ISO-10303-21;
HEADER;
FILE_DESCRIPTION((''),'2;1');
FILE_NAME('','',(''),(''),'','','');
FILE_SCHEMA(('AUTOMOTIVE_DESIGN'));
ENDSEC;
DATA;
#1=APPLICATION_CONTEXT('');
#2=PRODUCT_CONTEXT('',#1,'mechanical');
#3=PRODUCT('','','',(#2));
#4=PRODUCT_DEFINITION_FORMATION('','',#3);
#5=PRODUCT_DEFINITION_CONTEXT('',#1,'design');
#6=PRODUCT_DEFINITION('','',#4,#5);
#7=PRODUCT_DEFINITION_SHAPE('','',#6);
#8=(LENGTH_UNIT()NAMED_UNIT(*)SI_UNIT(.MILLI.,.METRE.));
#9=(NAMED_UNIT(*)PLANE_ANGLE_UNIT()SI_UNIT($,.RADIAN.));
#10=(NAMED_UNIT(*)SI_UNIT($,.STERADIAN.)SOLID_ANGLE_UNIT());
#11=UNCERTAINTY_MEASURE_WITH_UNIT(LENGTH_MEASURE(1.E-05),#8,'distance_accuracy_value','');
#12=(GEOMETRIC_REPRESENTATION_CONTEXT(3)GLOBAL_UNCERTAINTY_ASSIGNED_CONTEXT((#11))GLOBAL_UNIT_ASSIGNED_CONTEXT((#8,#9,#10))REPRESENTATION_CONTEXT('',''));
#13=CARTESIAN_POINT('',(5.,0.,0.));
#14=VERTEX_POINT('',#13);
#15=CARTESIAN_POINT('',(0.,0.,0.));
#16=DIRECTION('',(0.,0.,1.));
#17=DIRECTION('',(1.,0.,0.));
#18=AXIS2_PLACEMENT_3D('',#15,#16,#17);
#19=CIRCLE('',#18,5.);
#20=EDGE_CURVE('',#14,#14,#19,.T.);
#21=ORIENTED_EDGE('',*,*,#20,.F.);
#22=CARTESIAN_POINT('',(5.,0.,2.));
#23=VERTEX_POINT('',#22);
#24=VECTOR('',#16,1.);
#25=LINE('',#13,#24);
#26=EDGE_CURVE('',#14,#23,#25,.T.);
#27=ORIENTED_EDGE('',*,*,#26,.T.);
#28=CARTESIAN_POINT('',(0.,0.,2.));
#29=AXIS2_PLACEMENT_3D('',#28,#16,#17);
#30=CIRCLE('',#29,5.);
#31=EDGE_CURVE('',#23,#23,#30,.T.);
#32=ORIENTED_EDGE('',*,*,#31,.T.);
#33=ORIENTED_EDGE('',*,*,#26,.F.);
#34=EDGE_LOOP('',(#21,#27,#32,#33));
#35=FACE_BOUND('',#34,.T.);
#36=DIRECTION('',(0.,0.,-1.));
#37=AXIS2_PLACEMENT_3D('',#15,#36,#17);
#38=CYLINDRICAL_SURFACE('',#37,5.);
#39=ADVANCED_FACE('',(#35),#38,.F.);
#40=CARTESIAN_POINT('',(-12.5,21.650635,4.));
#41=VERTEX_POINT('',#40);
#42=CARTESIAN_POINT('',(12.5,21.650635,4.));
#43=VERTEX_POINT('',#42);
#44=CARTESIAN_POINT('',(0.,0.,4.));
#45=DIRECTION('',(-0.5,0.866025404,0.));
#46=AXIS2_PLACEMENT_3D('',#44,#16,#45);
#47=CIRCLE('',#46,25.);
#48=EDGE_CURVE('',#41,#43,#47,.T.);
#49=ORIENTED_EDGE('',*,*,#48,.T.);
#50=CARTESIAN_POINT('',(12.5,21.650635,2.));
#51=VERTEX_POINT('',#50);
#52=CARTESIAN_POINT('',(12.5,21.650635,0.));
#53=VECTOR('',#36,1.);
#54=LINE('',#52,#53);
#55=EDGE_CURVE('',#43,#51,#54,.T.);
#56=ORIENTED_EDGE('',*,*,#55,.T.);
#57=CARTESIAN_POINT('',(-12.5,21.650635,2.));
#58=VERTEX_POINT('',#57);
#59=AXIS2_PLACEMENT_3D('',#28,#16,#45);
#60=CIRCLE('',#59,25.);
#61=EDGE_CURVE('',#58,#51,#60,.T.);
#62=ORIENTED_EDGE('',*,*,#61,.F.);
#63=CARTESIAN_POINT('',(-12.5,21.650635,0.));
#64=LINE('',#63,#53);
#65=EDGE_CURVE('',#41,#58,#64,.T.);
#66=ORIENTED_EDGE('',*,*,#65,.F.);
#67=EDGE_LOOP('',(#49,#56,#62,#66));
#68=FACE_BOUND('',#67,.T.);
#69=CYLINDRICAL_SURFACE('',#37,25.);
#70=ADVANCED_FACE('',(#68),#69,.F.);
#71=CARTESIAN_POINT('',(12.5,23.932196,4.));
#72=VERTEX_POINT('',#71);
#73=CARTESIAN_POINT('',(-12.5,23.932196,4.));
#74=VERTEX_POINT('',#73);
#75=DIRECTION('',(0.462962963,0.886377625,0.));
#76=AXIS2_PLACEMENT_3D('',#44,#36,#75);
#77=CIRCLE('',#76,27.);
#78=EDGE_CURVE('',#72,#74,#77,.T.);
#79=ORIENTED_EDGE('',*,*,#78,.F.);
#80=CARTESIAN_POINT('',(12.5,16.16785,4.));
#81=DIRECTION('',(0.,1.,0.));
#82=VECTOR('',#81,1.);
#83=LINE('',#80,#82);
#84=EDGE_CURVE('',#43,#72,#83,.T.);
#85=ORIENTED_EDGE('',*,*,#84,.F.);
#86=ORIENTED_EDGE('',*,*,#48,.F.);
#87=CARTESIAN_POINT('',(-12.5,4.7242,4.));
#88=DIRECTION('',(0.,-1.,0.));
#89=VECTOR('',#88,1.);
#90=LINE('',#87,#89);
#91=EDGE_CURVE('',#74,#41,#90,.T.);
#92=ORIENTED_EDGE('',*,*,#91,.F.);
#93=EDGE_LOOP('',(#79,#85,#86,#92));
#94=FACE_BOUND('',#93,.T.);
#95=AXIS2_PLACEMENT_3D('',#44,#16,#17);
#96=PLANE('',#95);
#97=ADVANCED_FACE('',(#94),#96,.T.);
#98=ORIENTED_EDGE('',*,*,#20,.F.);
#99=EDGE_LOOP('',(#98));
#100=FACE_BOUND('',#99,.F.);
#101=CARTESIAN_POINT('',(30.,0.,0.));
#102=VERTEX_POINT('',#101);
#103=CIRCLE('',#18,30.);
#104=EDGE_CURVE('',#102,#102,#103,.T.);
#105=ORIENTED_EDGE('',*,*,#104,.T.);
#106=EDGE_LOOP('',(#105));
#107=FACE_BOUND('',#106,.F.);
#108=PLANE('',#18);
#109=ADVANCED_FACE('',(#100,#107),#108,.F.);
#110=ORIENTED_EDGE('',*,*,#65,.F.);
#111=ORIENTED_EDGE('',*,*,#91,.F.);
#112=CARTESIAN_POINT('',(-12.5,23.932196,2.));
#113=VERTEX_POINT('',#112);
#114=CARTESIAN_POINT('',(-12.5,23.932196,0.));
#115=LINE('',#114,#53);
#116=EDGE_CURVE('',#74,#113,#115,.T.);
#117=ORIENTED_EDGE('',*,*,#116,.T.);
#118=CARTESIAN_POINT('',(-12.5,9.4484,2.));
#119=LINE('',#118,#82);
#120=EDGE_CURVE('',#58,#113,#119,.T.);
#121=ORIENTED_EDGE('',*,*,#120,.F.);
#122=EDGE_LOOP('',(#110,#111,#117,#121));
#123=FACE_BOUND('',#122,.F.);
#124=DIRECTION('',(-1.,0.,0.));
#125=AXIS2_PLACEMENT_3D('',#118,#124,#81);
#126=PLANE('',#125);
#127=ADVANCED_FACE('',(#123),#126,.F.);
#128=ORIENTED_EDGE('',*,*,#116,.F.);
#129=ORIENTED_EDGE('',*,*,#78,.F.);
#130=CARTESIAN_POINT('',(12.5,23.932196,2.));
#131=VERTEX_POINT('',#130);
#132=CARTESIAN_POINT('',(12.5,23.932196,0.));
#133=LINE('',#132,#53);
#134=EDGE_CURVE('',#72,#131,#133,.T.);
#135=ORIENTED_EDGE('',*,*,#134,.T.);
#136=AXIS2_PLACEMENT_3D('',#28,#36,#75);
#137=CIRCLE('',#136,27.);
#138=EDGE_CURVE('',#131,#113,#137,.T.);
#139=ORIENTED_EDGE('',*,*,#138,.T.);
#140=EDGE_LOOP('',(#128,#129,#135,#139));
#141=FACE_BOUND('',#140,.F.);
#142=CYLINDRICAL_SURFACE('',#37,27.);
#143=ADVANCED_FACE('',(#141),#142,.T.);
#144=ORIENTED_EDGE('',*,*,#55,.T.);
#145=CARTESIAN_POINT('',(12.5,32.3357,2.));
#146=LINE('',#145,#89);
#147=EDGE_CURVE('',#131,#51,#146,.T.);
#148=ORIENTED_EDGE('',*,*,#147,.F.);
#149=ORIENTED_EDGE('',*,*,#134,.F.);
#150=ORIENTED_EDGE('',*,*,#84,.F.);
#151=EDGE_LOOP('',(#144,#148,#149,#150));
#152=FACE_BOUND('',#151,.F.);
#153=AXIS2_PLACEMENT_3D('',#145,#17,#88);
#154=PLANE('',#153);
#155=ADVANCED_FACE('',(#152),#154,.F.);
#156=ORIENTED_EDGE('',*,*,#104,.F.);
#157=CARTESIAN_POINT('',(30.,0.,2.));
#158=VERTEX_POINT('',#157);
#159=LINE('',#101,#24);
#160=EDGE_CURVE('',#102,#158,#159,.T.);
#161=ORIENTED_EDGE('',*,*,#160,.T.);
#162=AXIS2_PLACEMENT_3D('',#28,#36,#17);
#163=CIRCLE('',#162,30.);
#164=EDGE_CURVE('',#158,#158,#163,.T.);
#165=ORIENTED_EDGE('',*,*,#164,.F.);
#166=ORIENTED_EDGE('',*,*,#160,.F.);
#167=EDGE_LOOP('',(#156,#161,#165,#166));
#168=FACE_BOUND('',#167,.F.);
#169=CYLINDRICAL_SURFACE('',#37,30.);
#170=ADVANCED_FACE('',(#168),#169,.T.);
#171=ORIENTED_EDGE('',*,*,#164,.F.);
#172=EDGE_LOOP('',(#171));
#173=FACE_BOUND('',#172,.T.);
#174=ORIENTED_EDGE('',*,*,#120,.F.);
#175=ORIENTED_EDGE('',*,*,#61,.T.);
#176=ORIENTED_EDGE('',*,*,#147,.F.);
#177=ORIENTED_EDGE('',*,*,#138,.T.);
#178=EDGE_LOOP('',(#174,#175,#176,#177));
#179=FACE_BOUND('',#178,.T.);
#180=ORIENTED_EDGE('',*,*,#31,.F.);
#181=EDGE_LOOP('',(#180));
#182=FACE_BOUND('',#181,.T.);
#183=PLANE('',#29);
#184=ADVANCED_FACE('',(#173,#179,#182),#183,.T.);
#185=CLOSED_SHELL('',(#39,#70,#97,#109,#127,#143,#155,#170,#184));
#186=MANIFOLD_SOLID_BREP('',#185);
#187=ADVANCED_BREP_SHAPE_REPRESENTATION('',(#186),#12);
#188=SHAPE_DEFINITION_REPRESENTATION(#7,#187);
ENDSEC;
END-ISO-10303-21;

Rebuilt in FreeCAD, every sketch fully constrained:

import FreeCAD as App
import Part
import Sketcher
from FreeCAD import Vector
Q = App.Units.Quantity

doc = App.newDocument("Part")
body = doc.addObject("PartDesign::Body", "Body")

# Sketch on XY plane
sketch1 = body.newObject("Sketcher::SketchObject", "Sketch")
sketch1.AttachmentSupport = (doc.getObject("XY_Plane"), [""])
sketch1.MapMode = "FlatFace"
sketch1.addGeometry(Part.Circle(Vector(0, 0, 0), Vector(0, 0, 1), 30), False)
sketch1.addGeometry(Part.Circle(Vector(0, 0, 0), Vector(0, 0, 1), 5), False)
sketch1.addConstraint(Sketcher.Constraint("Coincident", 0, 3, -1, 1))
sketch1.addConstraint(Sketcher.Constraint("Coincident", 1, 3, -1, 1))
sketch1.addConstraint(Sketcher.Constraint("Diameter", 0, Q("60 mm")))
sketch1.addConstraint(Sketcher.Constraint("Diameter", 1, Q("10 mm")))
pad1 = body.newObject("PartDesign::Pad", "Pad")
pad1.Profile = sketch1
pad1.Length = 2

# Sketch on XY plane
sketch2 = body.newObject("Sketcher::SketchObject", "Sketch001")
sketch2.AttachmentSupport = (doc.getObject("XY_Plane"), [""])
sketch2.MapMode = "FlatFace"
sketch2.addGeometry(Part.Circle(Vector(0, 0, 0), Vector(0, 0, 1), 27), False)
sketch2.addGeometry(Part.Circle(Vector(0, 0, 0), Vector(0, 0, 1), 25), False)
sketch2.addConstraint(Sketcher.Constraint("Coincident", 0, 3, -1, 1))
sketch2.addConstraint(Sketcher.Constraint("Coincident", 1, 3, -1, 1))
sketch2.addConstraint(Sketcher.Constraint("Diameter", 0, Q("54 mm")))
sketch2.addConstraint(Sketcher.Constraint("Diameter", 1, Q("50 mm")))
pad2 = body.newObject("PartDesign::Pad", "Pad001")
pad2.Profile = sketch2
pad2.Length = 4

# Sketch on XY plane
sketch3 = body.newObject("Sketcher::SketchObject", "Sketch002")
sketch3.AttachmentSupport = (doc.getObject("XY_Plane"), [""])
sketch3.MapMode = "FlatFace"
sketch3.AttachmentOffset = App.Placement(Vector(0, 0, 2), App.Rotation())
sketch3.addGeometry(Part.LineSegment(Vector(12.5, 32.3357, 0), Vector(-12.5, 32.3357, 0)), False)
sketch3.addGeometry(Part.LineSegment(Vector(-12.5, 32.3357, 0), Vector(-12.5, 9.4484, 0)), False)
sketch3.addGeometry(Part.LineSegment(Vector(-12.5, 9.4484, 0), Vector(12.5, 9.4484, 0)), False)
sketch3.addGeometry(Part.LineSegment(Vector(12.5, 9.4484, 0), Vector(12.5, 32.3357, 0)), False)
sketch3.addConstraint(Sketcher.Constraint("Coincident", 0, 2, 1, 1))
sketch3.addConstraint(Sketcher.Constraint("Coincident", 1, 2, 2, 1))
sketch3.addConstraint(Sketcher.Constraint("Coincident", 2, 2, 3, 1))
sketch3.addConstraint(Sketcher.Constraint("Coincident", 3, 2, 0, 1))
sketch3.addConstraint(Sketcher.Constraint("Horizontal", 0))
sketch3.addConstraint(Sketcher.Constraint("Vertical", 1))
sketch3.addConstraint(Sketcher.Constraint("Horizontal", 2))
sketch3.addConstraint(Sketcher.Constraint("Vertical", 3))
sketch3.addConstraint(Sketcher.Constraint("DistanceX", 0, 2, 0, 1, Q("25 mm")))
sketch3.addConstraint(Sketcher.Constraint("DistanceX", 0, 2, -1, 1, Q("12.5 mm")))
sketch3.addConstraint(Sketcher.Constraint("DistanceY", 1, 2, 1, 1, Q("22.8873 mm")))
sketch3.addConstraint(Sketcher.Constraint("DistanceY", -1, 1, 0, 2, Q("32.3357 mm")))
pocket1 = body.newObject("PartDesign::Pocket", "Pocket")
pocket1.Profile = sketch3
pocket1.Length = 4
pocket1.Reversed = True

doc.recompute()
